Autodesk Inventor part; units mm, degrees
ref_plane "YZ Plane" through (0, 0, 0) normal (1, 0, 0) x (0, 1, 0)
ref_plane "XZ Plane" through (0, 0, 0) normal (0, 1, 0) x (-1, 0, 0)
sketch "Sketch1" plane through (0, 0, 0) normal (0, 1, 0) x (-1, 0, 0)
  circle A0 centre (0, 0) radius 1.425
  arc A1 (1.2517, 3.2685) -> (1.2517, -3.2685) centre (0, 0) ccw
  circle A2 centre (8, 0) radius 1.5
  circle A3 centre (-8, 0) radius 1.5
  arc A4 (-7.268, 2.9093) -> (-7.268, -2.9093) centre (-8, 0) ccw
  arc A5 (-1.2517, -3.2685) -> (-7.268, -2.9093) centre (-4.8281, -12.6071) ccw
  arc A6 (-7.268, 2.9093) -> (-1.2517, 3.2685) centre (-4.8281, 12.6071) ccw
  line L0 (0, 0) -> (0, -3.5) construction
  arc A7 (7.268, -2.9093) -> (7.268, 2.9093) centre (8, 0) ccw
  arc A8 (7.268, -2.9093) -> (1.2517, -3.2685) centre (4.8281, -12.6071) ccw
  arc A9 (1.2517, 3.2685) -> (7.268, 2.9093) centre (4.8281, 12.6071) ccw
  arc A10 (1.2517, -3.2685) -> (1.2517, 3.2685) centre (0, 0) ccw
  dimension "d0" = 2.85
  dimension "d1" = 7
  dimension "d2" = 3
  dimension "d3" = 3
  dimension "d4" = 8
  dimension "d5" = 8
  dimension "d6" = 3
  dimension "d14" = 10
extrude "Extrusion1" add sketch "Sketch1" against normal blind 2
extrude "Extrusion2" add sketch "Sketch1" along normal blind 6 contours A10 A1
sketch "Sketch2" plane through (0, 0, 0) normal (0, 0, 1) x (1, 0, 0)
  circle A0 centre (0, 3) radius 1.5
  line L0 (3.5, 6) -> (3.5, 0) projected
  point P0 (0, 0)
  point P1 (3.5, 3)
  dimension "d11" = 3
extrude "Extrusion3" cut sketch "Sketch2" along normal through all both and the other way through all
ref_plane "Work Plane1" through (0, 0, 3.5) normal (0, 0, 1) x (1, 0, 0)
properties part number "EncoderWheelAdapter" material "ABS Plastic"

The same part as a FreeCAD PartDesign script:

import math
import FreeCAD as App
import Part
import Sketcher

doc = App.newDocument("Part")
body = doc.addObject("PartDesign::Body", "Body")

# Sketch on XZ plane
sketch1 = body.newObject("Sketcher::SketchObject", "Sketch")
sketch1.AttachmentSupport = (doc.getObject("XZ_Plane"), [""])
sketch1.MapMode = "FlatFace"
sketch1.addGeometry([
    Part.ArcOfCircle(Part.Circle(App.Vector(0, 0, 0), App.Vector(0, 0, 1), 3.499978), math.radians(-110.954768), math.radians(-69.045232)),  # 0
    Part.ArcOfCircle(Part.Circle(App.Vector(-4.8281, -12.6071, 0), App.Vector(0, 0, 1), 10.000022), math.radians(69.044679), math.radians(104.122122)),  # 1
    Part.ArcOfCircle(Part.Circle(App.Vector(-8, 0, 0), App.Vector(0, 0, 1), 2.999975), math.radians(75.877136), math.radians(284.122864)),  # 2
    Part.ArcOfCircle(Part.Circle(App.Vector(-4.8281, 12.6071, 0), App.Vector(0, 0, 1), 10.000004), math.radians(-104.122122), math.radians(-69.044679)),  # 3
    Part.ArcOfCircle(Part.Circle(App.Vector(0, 0, 0), App.Vector(0, 0, 1), 3.499978), math.radians(69.045232), math.radians(110.954768)),  # 4
    Part.ArcOfCircle(Part.Circle(App.Vector(4.8281, 12.6071, 0), App.Vector(0, 0, 1), 10.000022), math.radians(-110.955321), math.radians(-75.877878)),  # 5
    Part.ArcOfCircle(Part.Circle(App.Vector(8, 0, 0), App.Vector(0, 0, 1), 2.999975), math.radians(-104.122864), math.radians(104.122864)),  # 6
    Part.ArcOfCircle(Part.Circle(App.Vector(4.8281, -12.6071, 0), App.Vector(0, 0, 1), 10.000004), math.radians(75.877878), math.radians(110.955321)),  # 7
    Part.Circle(App.Vector(0, 0, 0), App.Vector(0, 0, 1), 1.425),  # 8
    Part.Circle(App.Vector(-8, 0, 0), App.Vector(0, 0, 1), 1.5),  # 9
    Part.Circle(App.Vector(8, 0, 0), App.Vector(0, 0, 1), 1.5),  # 10
], False)
sketch1.addConstraint([
    Sketcher.Constraint("Tangent", 0, 1, 1, 1),
    Sketcher.Constraint("Tangent", 1, 2, 2, 2),
    Sketcher.Constraint("Tangent", 2, 1, 3, 1),
    Sketcher.Constraint("Tangent", 3, 2, 4, 2),
    Sketcher.Constraint("Tangent", 4, 1, 5, 1),
    Sketcher.Constraint("Tangent", 5, 2, 6, 2),
    Sketcher.Constraint("Tangent", 6, 1, 7, 1),
    Sketcher.Constraint("Tangent", 7, 2, 0, 2),
    Sketcher.Constraint("Coincident", 0, 3, -1, 1),
    Sketcher.Constraint("Coincident", 4, 3, -1, 1),
    Sketcher.Constraint("Coincident", 8, 3, -1, 1),
    Sketcher.Constraint("Coincident", 9, 3, 2, 3),
    Sketcher.Constraint("Coincident", 10, 3, 6, 3),
    Sketcher.Constraint("Equal", 1, 3),
    Sketcher.Constraint("Equal", 0, 4),
    Sketcher.Constraint("Equal", 3, 5),
    Sketcher.Constraint("Equal", 2, 6),
    Sketcher.Constraint("Equal", 5, 7),
    Sketcher.Constraint("Equal", 9, 10),
    Sketcher.Constraint("Symmetric", 2, 3, 6, 3, -1, 1),
    Sketcher.Constraint("PointOnObject", 2, 3, -1),
    Sketcher.Constraint("Diameter", 9, 3.0),
    Sketcher.Constraint("Radius", 1, 10.0),
    Sketcher.Constraint("Radius", 2, 3.0),
    Sketcher.Constraint("Radius", 0, 3.5),
    Sketcher.Constraint("Diameter", 8, 2.85),
    Sketcher.Constraint("DistanceX", 2, 3, -1, 1, 8.0),
])
pad1 = body.newObject("PartDesign::Pad", "Pad")
pad1.Profile = sketch1
pad1.Length = 2

# Sketch on XZ plane
sketch2 = body.newObject("Sketcher::SketchObject", "Sketch001")
sketch2.AttachmentSupport = (doc.getObject("XZ_Plane"), [""])
sketch2.MapMode = "FlatFace"
sketch2.addGeometry([
    Part.Circle(App.Vector(0, 0, 0), App.Vector(0, 0, 1), 3.499978),
    Part.Circle(App.Vector(0, 0, 0), App.Vector(0, 0, 1), 1.425),
], False)
sketch2.addConstraint([
    Sketcher.Constraint("Coincident", 0, 3, -1, 1),
    Sketcher.Constraint("Coincident", 1, 3, -1, 1),
    Sketcher.Constraint("Diameter", 0, 7.0),
    Sketcher.Constraint("Diameter", 1, 2.85),
])
pad2 = body.newObject("PartDesign::Pad", "Pad001")
pad2.Profile = sketch2
pad2.Length = 6
pad2.Reversed = True

# Sketch on XY plane
sketch3 = body.newObject("Sketcher::SketchObject", "Sketch002")
sketch3.AttachmentSupport = (doc.getObject("XY_Plane"), [""])
sketch3.MapMode = "FlatFace"
sketch3.addGeometry(Part.Circle(App.Vector(0, 3, 0), App.Vector(0, 0, 1), 1.5), False)
sketch3.addConstraint([
    Sketcher.Constraint("PointOnObject", 0, 3, -2),
    Sketcher.Constraint("Diameter", 0, 3.0),
    Sketcher.Constraint("DistanceY", -1, 1, 0, 3, 3.0),
])
pocket1 = body.newObject("PartDesign::Pocket", "Pocket")
pocket1.Profile = sketch3
pocket1.Type = "ThroughAll"
pocket1.Midplane = True

doc.recompute()
